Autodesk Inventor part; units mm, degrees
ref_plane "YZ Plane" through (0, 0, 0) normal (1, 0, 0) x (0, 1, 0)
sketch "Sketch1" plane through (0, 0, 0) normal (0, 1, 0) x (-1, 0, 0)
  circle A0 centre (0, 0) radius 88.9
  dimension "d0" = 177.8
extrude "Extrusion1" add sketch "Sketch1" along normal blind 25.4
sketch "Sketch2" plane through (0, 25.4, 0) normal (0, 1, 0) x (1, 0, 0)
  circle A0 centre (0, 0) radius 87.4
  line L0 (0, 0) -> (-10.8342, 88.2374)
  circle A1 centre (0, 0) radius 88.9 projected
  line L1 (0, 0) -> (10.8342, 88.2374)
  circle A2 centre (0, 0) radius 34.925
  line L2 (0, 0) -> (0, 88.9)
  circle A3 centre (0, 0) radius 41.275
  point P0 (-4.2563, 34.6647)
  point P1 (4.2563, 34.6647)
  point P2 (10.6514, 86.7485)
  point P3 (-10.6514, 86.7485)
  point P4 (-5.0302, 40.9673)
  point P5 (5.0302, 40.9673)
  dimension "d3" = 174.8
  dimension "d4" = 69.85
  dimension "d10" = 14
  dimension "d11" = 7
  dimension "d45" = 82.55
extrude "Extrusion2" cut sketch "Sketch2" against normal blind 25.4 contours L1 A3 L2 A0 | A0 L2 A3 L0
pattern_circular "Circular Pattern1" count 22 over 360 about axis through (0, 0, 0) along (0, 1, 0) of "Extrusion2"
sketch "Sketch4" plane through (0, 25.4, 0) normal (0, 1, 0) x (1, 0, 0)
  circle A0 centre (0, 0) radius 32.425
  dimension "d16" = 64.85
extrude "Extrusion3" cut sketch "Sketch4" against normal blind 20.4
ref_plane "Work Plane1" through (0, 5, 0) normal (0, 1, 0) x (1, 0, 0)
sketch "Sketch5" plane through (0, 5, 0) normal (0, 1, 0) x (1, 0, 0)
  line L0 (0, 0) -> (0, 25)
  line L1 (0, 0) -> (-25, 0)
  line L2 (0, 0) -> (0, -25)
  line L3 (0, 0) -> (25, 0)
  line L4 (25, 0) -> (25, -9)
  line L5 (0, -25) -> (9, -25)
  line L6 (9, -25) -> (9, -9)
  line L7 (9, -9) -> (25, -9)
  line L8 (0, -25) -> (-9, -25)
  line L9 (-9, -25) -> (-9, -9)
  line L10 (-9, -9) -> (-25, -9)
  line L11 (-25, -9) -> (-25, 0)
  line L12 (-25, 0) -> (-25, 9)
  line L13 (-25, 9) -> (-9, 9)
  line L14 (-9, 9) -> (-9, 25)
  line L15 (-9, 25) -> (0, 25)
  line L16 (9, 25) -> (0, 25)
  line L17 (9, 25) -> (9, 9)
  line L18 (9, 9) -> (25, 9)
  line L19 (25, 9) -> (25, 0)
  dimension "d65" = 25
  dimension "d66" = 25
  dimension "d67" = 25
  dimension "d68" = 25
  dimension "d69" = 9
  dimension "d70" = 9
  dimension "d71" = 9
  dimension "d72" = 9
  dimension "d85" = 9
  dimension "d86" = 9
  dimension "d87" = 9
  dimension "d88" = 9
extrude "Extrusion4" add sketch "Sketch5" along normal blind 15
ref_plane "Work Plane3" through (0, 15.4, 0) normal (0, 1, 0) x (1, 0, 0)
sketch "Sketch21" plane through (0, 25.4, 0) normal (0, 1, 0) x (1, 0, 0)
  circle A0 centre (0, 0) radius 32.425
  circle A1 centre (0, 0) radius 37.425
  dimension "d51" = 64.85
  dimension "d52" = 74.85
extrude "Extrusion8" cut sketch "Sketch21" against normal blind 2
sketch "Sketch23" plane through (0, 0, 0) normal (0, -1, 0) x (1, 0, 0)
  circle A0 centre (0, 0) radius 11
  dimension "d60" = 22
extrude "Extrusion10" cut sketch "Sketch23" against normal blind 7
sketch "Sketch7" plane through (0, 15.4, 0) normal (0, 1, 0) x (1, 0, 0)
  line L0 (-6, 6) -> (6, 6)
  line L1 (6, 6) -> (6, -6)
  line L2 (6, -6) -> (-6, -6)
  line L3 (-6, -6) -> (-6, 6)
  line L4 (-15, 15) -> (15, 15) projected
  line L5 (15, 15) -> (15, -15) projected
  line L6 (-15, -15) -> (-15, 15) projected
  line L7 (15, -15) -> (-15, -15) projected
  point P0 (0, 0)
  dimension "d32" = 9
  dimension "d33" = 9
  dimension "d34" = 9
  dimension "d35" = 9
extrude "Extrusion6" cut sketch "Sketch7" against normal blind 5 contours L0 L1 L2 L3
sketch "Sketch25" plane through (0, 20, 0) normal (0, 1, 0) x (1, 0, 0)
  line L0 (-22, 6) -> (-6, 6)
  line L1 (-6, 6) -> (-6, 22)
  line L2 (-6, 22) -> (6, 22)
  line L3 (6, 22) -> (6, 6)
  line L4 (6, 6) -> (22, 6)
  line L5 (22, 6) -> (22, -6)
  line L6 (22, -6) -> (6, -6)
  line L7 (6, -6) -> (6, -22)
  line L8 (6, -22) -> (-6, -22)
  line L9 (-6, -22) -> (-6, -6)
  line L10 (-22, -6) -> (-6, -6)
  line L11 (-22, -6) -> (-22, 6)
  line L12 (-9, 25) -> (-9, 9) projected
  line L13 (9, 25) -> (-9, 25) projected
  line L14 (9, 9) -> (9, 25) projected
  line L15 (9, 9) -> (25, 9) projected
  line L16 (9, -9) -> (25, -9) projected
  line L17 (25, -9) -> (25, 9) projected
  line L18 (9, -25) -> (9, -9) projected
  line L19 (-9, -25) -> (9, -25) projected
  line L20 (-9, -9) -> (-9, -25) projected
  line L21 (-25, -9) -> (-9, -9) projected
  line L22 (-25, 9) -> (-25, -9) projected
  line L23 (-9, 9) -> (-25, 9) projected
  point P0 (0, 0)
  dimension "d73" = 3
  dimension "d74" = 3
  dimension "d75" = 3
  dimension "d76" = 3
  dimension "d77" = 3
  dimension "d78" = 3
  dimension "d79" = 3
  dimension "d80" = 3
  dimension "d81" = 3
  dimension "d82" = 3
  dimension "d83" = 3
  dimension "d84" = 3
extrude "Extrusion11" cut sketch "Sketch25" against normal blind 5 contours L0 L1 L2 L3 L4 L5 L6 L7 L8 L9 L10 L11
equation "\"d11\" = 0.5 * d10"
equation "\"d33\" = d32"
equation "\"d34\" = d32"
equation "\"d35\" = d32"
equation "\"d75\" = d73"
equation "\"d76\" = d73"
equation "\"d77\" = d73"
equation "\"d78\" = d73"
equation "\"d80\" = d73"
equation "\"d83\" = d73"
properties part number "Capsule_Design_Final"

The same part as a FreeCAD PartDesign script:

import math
import FreeCAD as App
import Part
import Sketcher
from FreeCAD import Vector
Q = App.Units.Quantity

doc = App.newDocument("Part")
body = doc.addObject("PartDesign::Body", "Body")

sketch1 = doc.addObject("Sketcher::SketchObject", "Sketch")
body.addObject(sketch1)
sketch1.AttachmentSupport = (doc.XZ_Plane, [""])
sketch1.MapMode = "FlatFace"
sketch1.addGeometry(Part.Circle(Vector(0, 0, 0), Vector(0, 0, 1), 89), False)
sketch1.addConstraint([
    Sketcher.Constraint("Coincident", 0, 3, -1, 1),
    Sketcher.Constraint("Diameter", 0, 177.8),
])
pad1 = doc.addObject("PartDesign::Pad", "Pad")
body.addObject(pad1)
pad1.Profile = sketch1
pad1.Length = 25.4
pad1.Reversed = True

sketch2 = doc.addObject("Sketcher::SketchObject", "Sketch001")
body.addObject(sketch2)
sketch2.AttachmentSupport = (doc.XZ_Plane, [""])
sketch2.MapMode = "FlatFace"
sketch2.AttachmentOffset = App.Placement(Vector(0, 0, -25.4), App.Rotation())
sketch2.addGeometry([
    Part.LineSegment(Vector(5, -41, 0), Vector(11, -87, 0)),
    Part.ArcOfCircle(Part.Circle(Vector(0, 0, 0), Vector(0, 0, 1), 87), math.radians(-97), math.radians(-83)),
    Part.LineSegment(Vector(-11, -87, 0), Vector(-5, -41, 0)),
    Part.ArcOfCircle(Part.Circle(Vector(0, 0, 0), Vector(0, 0, 1), 41), math.radians(-97), math.radians(-83)),
], False)
sketch2.addConstraint([
    Sketcher.Constraint("Coincident", 0, 2, 1, 2),
    Sketcher.Constraint("Coincident", 1, 1, 2, 1),
    Sketcher.Constraint("Coincident", 2, 2, 3, 1),
    Sketcher.Constraint("Coincident", 3, 2, 0, 1),
    Sketcher.Constraint("Coincident", 1, 3, -1, 1),
    Sketcher.Constraint("Coincident", 3, 3, -1, 1),
    Sketcher.Constraint("Horizontal", 0, 2, 1, 1),
    Sketcher.Constraint("Horizontal", 2, 2, 3, 2),
    Sketcher.Constraint("Radius", 1, 87.4),
    Sketcher.Constraint("Radius", 3, 41.275),
    Sketcher.Constraint("Angle", 0, Q("-83 deg")),
    Sketcher.Constraint("DistanceX", -1, 1, 0, 2, 10.6514),
])
pocket1 = doc.addObject("PartDesign::Pocket", "Pocket")
body.addObject(pocket1)
pocket1.Profile = sketch2
pocket1.Length = 25.4
pocket1.Reversed = True
doc.recompute()

polarpattern = doc.addObject("PartDesign::PolarPattern", "PolarPattern")
body.addObject(polarpattern)
polarpattern.Originals = [pocket1]
polarpattern.Axis = (doc.Y_Axis, [""])
polarpattern.Angle = 360
polarpattern.Occurrences = 22
body.Tip = polarpattern

sketch3 = doc.addObject("Sketcher::SketchObject", "Sketch002")
body.addObject(sketch3)
sketch3.AttachmentSupport = (doc.XZ_Plane, [""])
sketch3.MapMode = "FlatFace"
sketch3.AttachmentOffset = App.Placement(Vector(0, 0, -25.4), App.Rotation())
sketch3.addGeometry(Part.Circle(Vector(0, 0, 0), Vector(0, 0, 1), 32), False)
sketch3.addConstraint([
    Sketcher.Constraint("Coincident", 0, 3, -1, 1),
    Sketcher.Constraint("Diameter", 0, 64.85),
])
pocket2 = doc.addObject("PartDesign::Pocket", "Pocket001")
body.addObject(pocket2)
pocket2.Profile = sketch3
pocket2.Length = 20.4
pocket2.Reversed = True

sketch4 = doc.addObject("Sketcher::SketchObject", "Sketch003")
body.addObject(sketch4)
sketch4.AttachmentSupport = (doc.XZ_Plane, [""])
sketch4.MapMode = "FlatFace"
sketch4.AttachmentOffset = App.Placement(Vector(0, 0, -5), App.Rotation())
sketch4.addGeometry([
    Part.LineSegment(Vector(-25, -9, 0), Vector(-25, 9, 0)),
    Part.LineSegment(Vector(-25, 9, 0), Vector(-9, 9, 0)),
    Part.LineSegment(Vector(-9, 9, 0), Vector(-9, 25, 0)),
    Part.LineSegment(Vector(-9, 25, 0), Vector(9, 25, 0)),
    Part.LineSegment(Vector(9, 25, 0), Vector(9, 9, 0)),
    Part.LineSegment(Vector(9, 9, 0), Vector(25, 9, 0)),
    Part.LineSegment(Vector(25, 9, 0), Vector(25, -9, 0)),
    Part.LineSegment(Vector(25, -9, 0), Vector(9, -9, 0)),
    Part.LineSegment(Vector(9, -9, 0), Vector(9, -25, 0)),
    Part.LineSegment(Vector(9, -25, 0), Vector(-9, -25, 0)),
    Part.LineSegment(Vector(-9, -25, 0), Vector(-9, -9, 0)),
    Part.LineSegment(Vector(-9, -9, 0), Vector(-25, -9, 0)),
], False)
sketch4.addConstraint([
    Sketcher.Constraint("Coincident", 0, 2, 1, 1),
    Sketcher.Constraint("Coincident", 1, 2, 2, 1),
    Sketcher.Constraint("Coincident", 2, 2, 3, 1),
    Sketcher.Constraint("Coincident", 3, 2, 4, 1),
    Sketcher.Constraint("Coincident", 4, 2, 5, 1),
    Sketcher.Constraint("Coincident", 5, 2, 6, 1),
    Sketcher.Constraint("Coincident", 6, 2, 7, 1),
    Sketcher.Constraint("Coincident", 7, 2, 8, 1),
    Sketcher.Constraint("Coincident", 8, 2, 9, 1),
    Sketcher.Constraint("Coincident", 9, 2, 10, 1),
    Sketcher.Constraint("Coincident", 10, 2, 11, 1),
    Sketcher.Constraint("Coincident", 11, 2, 0, 1),
    Sketcher.Constraint("Vertical", 0),
    Sketcher.Constraint("Horizontal", 1),
    Sketcher.Constraint("Vertical", 2),
    Sketcher.Constraint("Horizontal", 3),
    Sketcher.Constraint("Vertical", 4),
    Sketcher.Constraint("Horizontal", 5),
    Sketcher.Constraint("Vertical", 6),
    Sketcher.Constraint("Horizontal", 7),
    Sketcher.Constraint("Vertical", 8),
    Sketcher.Constraint("Horizontal", 9),
    Sketcher.Constraint("Vertical", 10),
    Sketcher.Constraint("Horizontal", 11),
    Sketcher.Constraint("Symmetric", 0, 2, 6, 2, -1, 1),
    Sketcher.Constraint("Symmetric", 2, 2, 8, 2, -1, 1),
    Sketcher.Constraint("Symmetric", 4, 2, 10, 2, -1, 1),
    Sketcher.Constraint("Symmetric", 1, 2, 4, 2, -2),
    Sketcher.Constraint("Equal", 9, 0),
    Sketcher.Constraint("Equal", 11, 2),
    Sketcher.Constraint("DistanceX", 0, 2, -1, 1, 25.0),
    Sketcher.Constraint("DistanceY", -1, 1, 0, 2, 9.0),
])
pad2 = doc.addObject("PartDesign::Pad", "Pad001")
body.addObject(pad2)
pad2.Profile = sketch4
pad2.Length = 15
pad2.Reversed = True

sketch5 = doc.addObject("Sketcher::SketchObject", "Sketch004")
body.addObject(sketch5)
sketch5.AttachmentSupport = (doc.XZ_Plane, [""])
sketch5.MapMode = "FlatFace"
sketch5.AttachmentOffset = App.Placement(Vector(0, 0, -25.4), App.Rotation())
sketch5.addGeometry([
    Part.Circle(Vector(0, 0, 0), Vector(0, 0, 1), 37),
    Part.Circle(Vector(0, 0, 0), Vector(0, 0, 1), 32),
], False)
sketch5.addConstraint([
    Sketcher.Constraint("Coincident", 0, 3, -1, 1),
    Sketcher.Constraint("Coincident", 1, 3, -1, 1),
    Sketcher.Constraint("Diameter", 0, 74.85),
    Sketcher.Constraint("Diameter", 1, 64.85),
])
pocket3 = doc.addObject("PartDesign::Pocket", "Pocket002")
body.addObject(pocket3)
pocket3.Profile = sketch5
pocket3.Length = 2
pocket3.Reversed = True

sketch6 = doc.addObject("Sketcher::SketchObject", "Sketch005")
body.addObject(sketch6)
sketch6.AttachmentSupport = (doc.XZ_Plane, [""])
sketch6.MapMode = "FlatFace"
sketch6.addGeometry(Part.Circle(Vector(0, 0, 0), Vector(0, 0, 1), 11), False)
sketch6.addConstraint([
    Sketcher.Constraint("Coincident", 0, 3, -1, 1),
    Sketcher.Constraint("Diameter", 0, 22.0),
])
pocket4 = doc.addObject("PartDesign::Pocket", "Pocket003")
body.addObject(pocket4)
pocket4.Profile = sketch6
pocket4.Length = 7

sketch7 = doc.addObject("Sketcher::SketchObject", "Sketch006")
body.addObject(sketch7)
sketch7.AttachmentSupport = (doc.XZ_Plane, [""])
sketch7.MapMode = "FlatFace"
sketch7.AttachmentOffset = App.Placement(Vector(0, 0, -15.4), App.Rotation())
sketch7.addGeometry([
    Part.LineSegment(Vector(6, -6, 0), Vector(-6, -6, 0)),
    Part.LineSegment(Vector(-6, -6, 0), Vector(-6, 6, 0)),
    Part.LineSegment(Vector(-6, 6, 0), Vector(6, 6, 0)),
    Part.LineSegment(Vector(6, 6, 0), Vector(6, -6, 0)),
], False)
sketch7.addConstraint([
    Sketcher.Constraint("Coincident", 0, 2, 1, 1),
    Sketcher.Constraint("Coincident", 1, 2, 2, 1),
    Sketcher.Constraint("Coincident", 2, 2, 3, 1),
    Sketcher.Constraint("Coincident", 3, 2, 0, 1),
    Sketcher.Constraint("Horizontal", 0),
    Sketcher.Constraint("Vertical", 1),
    Sketcher.Constraint("Horizontal", 2),
    Sketcher.Constraint("Vertical", 3),
    Sketcher.Constraint("Symmetric", 0, 2, 2, 2, -1, 1),
    Sketcher.Constraint("Equal", 2, 1),
    Sketcher.Constraint("DistanceX", 0, 2, 0, 1, 12.0),
])
pocket5 = doc.addObject("PartDesign::Pocket", "Pocket004")
body.addObject(pocket5)
pocket5.Profile = sketch7
pocket5.Length = 5
pocket5.Reversed = True

sketch8 = doc.addObject("Sketcher::SketchObject", "Sketch007")
body.addObject(sketch8)
sketch8.AttachmentSupport = (doc.XZ_Plane, [""])
sketch8.MapMode = "FlatFace"
sketch8.AttachmentOffset = App.Placement(Vector(0, 0, -20), App.Rotation())
sketch8.addGeometry([
    Part.LineSegment(Vector(-6, -6, 0), Vector(-22, -6, 0)),
    Part.LineSegment(Vector(-22, -6, 0), Vector(-22, 6, 0)),
    Part.LineSegment(Vector(-22, 6, 0), Vector(-6, 6, 0)),
    Part.LineSegment(Vector(-6, 6, 0), Vector(-6, 22, 0)),
    Part.LineSegment(Vector(-6, 22, 0), Vector(6, 22, 0)),
    Part.LineSegment(Vector(6, 22, 0), Vector(6, 6, 0)),
    Part.LineSegment(Vector(6, 6, 0), Vector(22, 6, 0)),
    Part.LineSegment(Vector(22, 6, 0), Vector(22, -6, 0)),
    Part.LineSegment(Vector(22, -6, 0), Vector(6, -6, 0)),
    Part.LineSegment(Vector(6, -6, 0), Vector(6, -22, 0)),
    Part.LineSegment(Vector(6, -22, 0), Vector(-6, -22, 0)),
    Part.LineSegment(Vector(-6, -22, 0), Vector(-6, -6, 0)),
], False)
sketch8.addConstraint([
    Sketcher.Constraint("Coincident", 0, 2, 1, 1),
    Sketcher.Constraint("Coincident", 1, 2, 2, 1),
    Sketcher.Constraint("Coincident", 2, 2, 3, 1),
    Sketcher.Constraint("Coincident", 3, 2, 4, 1),
    Sketcher.Constraint("Coincident", 4, 2, 5, 1),
    Sketcher.Constraint("Coincident", 5, 2, 6, 1),
    Sketcher.Constraint("Coincident", 6, 2, 7, 1),
    Sketcher.Constraint("Coincident", 7, 2, 8, 1),
    Sketcher.Constraint("Coincident", 8, 2, 9, 1),
    Sketcher.Constraint("Coincident", 9, 2, 10, 1),
    Sketcher.Constraint("Coincident", 10, 2, 11, 1),
    Sketcher.Constraint("Coincident", 11, 2, 0, 1),
    Sketcher.Constraint("Horizontal", 0),
    Sketcher.Constraint("Vertical", 1),
    Sketcher.Constraint("Horizontal", 2),
    Sketcher.Constraint("Vertical", 3),
    Sketcher.Constraint("Horizontal", 4),
    Sketcher.Constraint("Vertical", 5),
    Sketcher.Constraint("Horizontal", 6),
    Sketcher.Constraint("Vertical", 7),
    Sketcher.Constraint("Horizontal", 8),
    Sketcher.Constraint("Vertical", 9),
    Sketcher.Constraint("Horizontal", 10),
    Sketcher.Constraint("Vertical", 11),
    Sketcher.Constraint("Symmetric", 0, 2, 6, 2, -1, 1),
    Sketcher.Constraint("Symmetric", 2, 2, 8, 2, -1, 1),
    Sketcher.Constraint("Symmetric", 4, 2, 10, 2, -1, 1),
    Sketcher.Constraint("Symmetric", 2, 2, 5, 2, -2),
    Sketcher.Constraint("Equal", 10, 1),
    Sketcher.Constraint("Equal", 8, 3),
    Sketcher.Constraint("DistanceX", 0, 2, 0, 1, 16.0),
    Sketcher.Constraint("DistanceX", 4, 1, 4, 2, 12.0),
])
pocket6 = doc.addObject("PartDesign::Pocket", "Pocket005")
body.addObject(pocket6)
pocket6.Profile = sketch8
pocket6.Length = 5
pocket6.Reversed = True

doc.recompute()
